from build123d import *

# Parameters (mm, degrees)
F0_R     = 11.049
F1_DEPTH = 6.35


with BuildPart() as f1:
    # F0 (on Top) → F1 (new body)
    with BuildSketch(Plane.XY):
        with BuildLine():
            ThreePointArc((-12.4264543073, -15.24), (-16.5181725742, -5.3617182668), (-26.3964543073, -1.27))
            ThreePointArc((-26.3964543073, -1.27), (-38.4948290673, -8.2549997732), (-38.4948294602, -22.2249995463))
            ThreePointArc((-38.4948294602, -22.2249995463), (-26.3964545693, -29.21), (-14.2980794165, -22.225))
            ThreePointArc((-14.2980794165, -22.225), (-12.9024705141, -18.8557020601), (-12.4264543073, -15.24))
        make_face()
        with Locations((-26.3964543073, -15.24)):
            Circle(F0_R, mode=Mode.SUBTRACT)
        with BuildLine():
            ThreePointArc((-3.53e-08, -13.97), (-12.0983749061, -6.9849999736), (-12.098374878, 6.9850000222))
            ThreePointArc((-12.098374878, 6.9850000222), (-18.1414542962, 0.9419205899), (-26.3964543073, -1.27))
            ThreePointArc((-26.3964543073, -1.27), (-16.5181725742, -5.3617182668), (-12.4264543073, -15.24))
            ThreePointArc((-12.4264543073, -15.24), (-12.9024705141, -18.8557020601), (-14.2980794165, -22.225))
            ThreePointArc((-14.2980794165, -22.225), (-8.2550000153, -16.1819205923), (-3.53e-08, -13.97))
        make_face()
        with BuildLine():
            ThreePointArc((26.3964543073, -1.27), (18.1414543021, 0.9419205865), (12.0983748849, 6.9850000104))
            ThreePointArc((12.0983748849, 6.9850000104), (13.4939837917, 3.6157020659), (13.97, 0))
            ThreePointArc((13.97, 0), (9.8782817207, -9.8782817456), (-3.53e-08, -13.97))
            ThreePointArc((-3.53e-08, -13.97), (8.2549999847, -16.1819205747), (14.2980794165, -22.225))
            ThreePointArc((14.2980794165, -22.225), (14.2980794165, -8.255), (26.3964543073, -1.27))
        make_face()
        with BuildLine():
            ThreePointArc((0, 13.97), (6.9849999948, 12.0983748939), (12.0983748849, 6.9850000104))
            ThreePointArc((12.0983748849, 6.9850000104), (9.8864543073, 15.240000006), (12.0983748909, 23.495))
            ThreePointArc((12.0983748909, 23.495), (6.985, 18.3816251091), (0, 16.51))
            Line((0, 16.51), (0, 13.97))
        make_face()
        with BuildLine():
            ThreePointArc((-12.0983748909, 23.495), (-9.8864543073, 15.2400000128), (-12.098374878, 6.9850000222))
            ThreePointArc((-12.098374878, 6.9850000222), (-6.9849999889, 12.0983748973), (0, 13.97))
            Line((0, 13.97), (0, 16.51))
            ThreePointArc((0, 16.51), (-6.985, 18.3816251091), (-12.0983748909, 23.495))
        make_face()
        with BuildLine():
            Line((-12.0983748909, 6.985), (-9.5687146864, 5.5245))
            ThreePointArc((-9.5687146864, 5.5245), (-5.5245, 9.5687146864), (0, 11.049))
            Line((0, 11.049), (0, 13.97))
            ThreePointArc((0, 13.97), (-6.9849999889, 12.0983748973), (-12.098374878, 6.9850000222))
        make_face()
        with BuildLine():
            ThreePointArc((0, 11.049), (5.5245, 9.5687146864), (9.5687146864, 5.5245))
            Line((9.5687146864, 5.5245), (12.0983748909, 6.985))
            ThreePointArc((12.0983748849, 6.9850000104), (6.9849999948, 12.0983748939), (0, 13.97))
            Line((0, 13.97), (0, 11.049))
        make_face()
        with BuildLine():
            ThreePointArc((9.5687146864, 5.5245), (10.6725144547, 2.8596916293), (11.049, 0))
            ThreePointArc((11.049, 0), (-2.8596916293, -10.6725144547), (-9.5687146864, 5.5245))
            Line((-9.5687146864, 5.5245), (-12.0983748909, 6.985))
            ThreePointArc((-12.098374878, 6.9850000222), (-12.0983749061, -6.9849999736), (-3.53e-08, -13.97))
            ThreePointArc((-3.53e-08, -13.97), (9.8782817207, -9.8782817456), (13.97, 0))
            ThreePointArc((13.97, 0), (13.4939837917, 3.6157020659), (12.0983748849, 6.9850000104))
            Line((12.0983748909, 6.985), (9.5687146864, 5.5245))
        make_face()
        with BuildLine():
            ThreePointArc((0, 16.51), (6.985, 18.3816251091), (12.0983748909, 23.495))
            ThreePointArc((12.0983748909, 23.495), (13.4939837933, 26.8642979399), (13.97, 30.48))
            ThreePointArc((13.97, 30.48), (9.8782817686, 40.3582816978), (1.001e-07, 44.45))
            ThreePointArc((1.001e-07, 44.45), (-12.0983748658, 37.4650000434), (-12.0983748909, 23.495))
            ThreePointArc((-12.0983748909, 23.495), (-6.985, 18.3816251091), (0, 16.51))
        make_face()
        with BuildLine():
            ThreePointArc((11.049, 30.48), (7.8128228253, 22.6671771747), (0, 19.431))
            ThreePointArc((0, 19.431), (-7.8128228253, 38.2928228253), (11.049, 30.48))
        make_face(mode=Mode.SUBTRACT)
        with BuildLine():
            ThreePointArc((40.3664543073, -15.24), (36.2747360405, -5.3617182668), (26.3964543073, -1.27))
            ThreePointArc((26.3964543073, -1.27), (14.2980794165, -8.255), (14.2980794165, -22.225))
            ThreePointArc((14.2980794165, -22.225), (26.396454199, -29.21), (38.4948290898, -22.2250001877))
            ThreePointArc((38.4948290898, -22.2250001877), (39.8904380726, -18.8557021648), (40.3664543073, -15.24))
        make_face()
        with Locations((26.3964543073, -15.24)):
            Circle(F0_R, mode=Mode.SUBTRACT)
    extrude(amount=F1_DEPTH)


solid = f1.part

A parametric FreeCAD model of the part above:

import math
import FreeCAD as App
import Part
import Sketcher
Q = App.Units.Quantity

doc = App.newDocument("Part")
body = doc.addObject("PartDesign::Body", "Body")

# Sketch on XY plane
sketch1 = doc.addObject("Sketcher::SketchObject", "Sketch")
body.addObject(sketch1)
sketch1.AttachmentSupport = (doc.XY_Plane, [""])
sketch1.MapMode = "FlatFace"
sketch1.addGeometry(Part.ArcOfCircle(Part.Circle(App.Vector(-26, -15, 0), App.Vector(0, 0, 1), 14), math.radians(90), math.radians(210)), False)
sketch1.addGeometry(Part.ArcOfCircle(Part.Circle(App.Vector(-26, -15, 0), App.Vector(0, 0, 1), 14), math.radians(-150), math.radians(-30)), False)
sketch1.addGeometry(Part.ArcOfCircle(Part.Circle(App.Vector(0, -30, 0), App.Vector(0, 0, 1), 17), math.radians(90), math.radians(150)), False)
sketch1.addGeometry(Part.ArcOfCircle(Part.Circle(App.Vector(0, -30, 0), App.Vector(0, 0, 1), 17), math.radians(30), math.radians(90)), False)
sketch1.addGeometry(Part.ArcOfCircle(Part.Circle(App.Vector(26, -15, 0), App.Vector(0, 0, 1), 14), math.radians(-150), math.radians(-30)), False)
sketch1.addGeometry(Part.ArcOfCircle(Part.Circle(App.Vector(26, -15, 0), App.Vector(0, 0, 1), 14), math.radians(-30), math.radians(0)), False)
sketch1.addGeometry(Part.ArcOfCircle(Part.Circle(App.Vector(26, -15, 0), App.Vector(0, 0, 1), 14), math.radians(0), math.radians(90)), False)
sketch1.addGeometry(Part.ArcOfCircle(Part.Circle(App.Vector(26, 15, 0), App.Vector(0, 0, 1), 17), math.radians(-150), math.radians(-90)), False)
sketch1.addGeometry(Part.ArcOfCircle(Part.Circle(App.Vector(26, 15, 0), App.Vector(0, 0, 1), 17), math.radians(150), math.radians(210)), False)
sketch1.addGeometry(Part.ArcOfCircle(Part.Circle(App.Vector(0, 30, 0), App.Vector(0, 0, 1), 14), math.radians(-30), math.radians(0)), False)
sketch1.addGeometry(Part.ArcOfCircle(Part.Circle(App.Vector(0, 30, 0), App.Vector(0, 0, 1), 14), math.radians(0), math.radians(90)), False)
sketch1.addGeometry(Part.ArcOfCircle(Part.Circle(App.Vector(0, 30, 0), App.Vector(0, 0, 1), 14), math.radians(90), math.radians(210)), False)
sketch1.addGeometry(Part.ArcOfCircle(Part.Circle(App.Vector(-26, 15, 0), App.Vector(0, 0, 1), 17), math.radians(-30), math.radians(30)), False)
sketch1.addGeometry(Part.ArcOfCircle(Part.Circle(App.Vector(-26, 15, 0), App.Vector(0, 0, 1), 17), math.radians(-90), math.radians(-30)), False)
sketch1.addGeometry(Part.Circle(App.Vector(-26, -15, 0), App.Vector(0, 0, 1), 11), False)
sketch1.addGeometry(Part.Circle(App.Vector(26, -15, 0), App.Vector(0, 0, 1), 11), False)
sketch1.addGeometry(Part.ArcOfCircle(Part.Circle(App.Vector(0, 0, 0), App.Vector(0, 0, 1), 11), math.radians(0), math.radians(30)), False)
sketch1.addGeometry(Part.ArcOfCircle(Part.Circle(App.Vector(0, 0, 0), App.Vector(0, 0, 1), 11), math.radians(90), math.radians(360)), False)
sketch1.addGeometry(Part.ArcOfCircle(Part.Circle(App.Vector(0, 0, 0), App.Vector(0, 0, 1), 11), math.radians(30), math.radians(90)), False)
sketch1.addGeometry(Part.ArcOfCircle(Part.Circle(App.Vector(0, 30, 0), App.Vector(0, 0, 1), 11), math.radians(0), math.radians(270)), False)
sketch1.addGeometry(Part.ArcOfCircle(Part.Circle(App.Vector(0, 30, 0), App.Vector(0, 0, 1), 11), math.radians(-90), math.radians(0)), False)
sketch1.addConstraint(Sketcher.Constraint("Tangent", 0, 2, 1, 1))
sketch1.addConstraint(Sketcher.Constraint("Tangent", 1, 2, 2, 2))
sketch1.addConstraint(Sketcher.Constraint("Tangent", 2, 1, 3, 2))
sketch1.addConstraint(Sketcher.Constraint("Tangent", 3, 1, 4, 1))
sketch1.addConstraint(Sketcher.Constraint("Tangent", 4, 2, 5, 1))
sketch1.addConstraint(Sketcher.Constraint("Tangent", 5, 2, 6, 1))
sketch1.addConstraint(Sketcher.Constraint("Tangent", 6, 2, 7, 2))
sketch1.addConstraint(Sketcher.Constraint("Tangent", 7, 1, 8, 2))
sketch1.addConstraint(Sketcher.Constraint("Tangent", 8, 1, 9, 1))
sketch1.addConstraint(Sketcher.Constraint("Tangent", 9, 2, 10, 1))
sketch1.addConstraint(Sketcher.Constraint("Tangent", 10, 2, 11, 1))
sketch1.addConstraint(Sketcher.Constraint("Tangent", 11, 2, 12, 2))
sketch1.addConstraint(Sketcher.Constraint("Tangent", 12, 1, 13, 2))
sketch1.addConstraint(Sketcher.Constraint("Tangent", 13, 1, 0, 1))
sketch1.addConstraint(Sketcher.Constraint("Tangent", 16, 1, 17, 2))
sketch1.addConstraint(Sketcher.Constraint("Tangent", 17, 1, 18, 2))
sketch1.addConstraint(Sketcher.Constraint("Tangent", 18, 1, 16, 2))
sketch1.addConstraint(Sketcher.Constraint("Tangent", 19, 1, 20, 2))
sketch1.addConstraint(Sketcher.Constraint("Coincident", 20, 1, 19, 2))
sketch1.addConstraint(Sketcher.Constraint("Coincident", 16, 3, -1, 1))
sketch1.addConstraint(Sketcher.Constraint("Coincident", 6, 3, 4, 3))
sketch1.addConstraint(Sketcher.Constraint("Coincident", 11, 3, 9, 3))
sketch1.addConstraint(Sketcher.Constraint("Coincident", 14, 3, 0, 3))
sketch1.addConstraint(Sketcher.Constraint("Coincident", 15, 3, 4, 3))
sketch1.addConstraint(Sketcher.Constraint("Coincident", 19, 3, 9, 3))
sketch1.addConstraint(Sketcher.Constraint("Equal", 0, 1))
sketch1.addConstraint(Sketcher.Constraint("Equal", 2, 3))
sketch1.addConstraint(Sketcher.Constraint("Equal", 1, 4))
sketch1.addConstraint(Sketcher.Constraint("Equal", 3, 7))
sketch1.addConstraint(Sketcher.Constraint("Equal", 7, 8))
sketch1.addConstraint(Sketcher.Constraint("Equal", 6, 9))
sketch1.addConstraint(Sketcher.Constraint("Equal", 8, 12))
sketch1.addConstraint(Sketcher.Constraint("Equal", 12, 13))
sketch1.addConstraint(Sketcher.Constraint("Equal", 14, 15))
sketch1.addConstraint(Sketcher.Constraint("Equal", 15, 16))
sketch1.addConstraint(Sketcher.Constraint("Equal", 18, 19))
sketch1.addConstraint(Sketcher.Constraint("Symmetric", 0, 3, 7, 3, -1, 1))
sketch1.addConstraint(Sketcher.Constraint("Symmetric", 0, 3, 4, 3, -2))
sketch1.addConstraint(Sketcher.Constraint("Symmetric", 7, 1, 12, 1, -2))
sketch1.addConstraint(Sketcher.Constraint("PointOnObject", 2, 1, -2))
sketch1.addConstraint(Sketcher.Constraint("PointOnObject", 10, 2, -2))
sketch1.addConstraint(Sketcher.Constraint("PointOnObject", 16, 1, -1))
sketch1.addConstraint(Sketcher.Constraint("PointOnObject", 17, 1, -2))
sketch1.addConstraint(Sketcher.Constraint("PointOnObject", 20, 1, -2))
sketch1.addConstraint(Sketcher.Constraint("Horizontal", 0, 2, 1, 2))
sketch1.addConstraint(Sketcher.Constraint("Horizontal", 3, 1, 4, 2))
sketch1.addConstraint(Sketcher.Constraint("Horizontal", 15, 3, 5, 2))
sketch1.addConstraint(Sketcher.Constraint("Horizontal", 20, 3, 9, 2))
sketch1.addConstraint(Sketcher.Constraint("Horizontal", 9, 2, 19, 1))
sketch1.addConstraint(Sketcher.Constraint("Vertical", 7, 1, 8, 1))
sketch1.addConstraint(Sketcher.Constraint("Diameter", 14, Q("0.87 in")))
sketch1.addConstraint(Sketcher.Constraint("Radius", 0, Q("0.55 in")))
sketch1.addConstraint(Sketcher.Constraint("Radius", 2, Q("0.65 in")))
sketch1.addConstraint(Sketcher.Constraint("DistanceY", 2, 3, -1, 1, Q("1.2 in")))
sketch1.addConstraint(Sketcher.Constraint("DistanceY", -1, 1, 18, 1, Q("0.2175 in")))
pad1 = doc.addObject("PartDesign::Pad", "Pad")
body.addObject(pad1)
pad1.Profile = sketch1
pad1.Length = Q("0.25 in")

doc.recompute()
